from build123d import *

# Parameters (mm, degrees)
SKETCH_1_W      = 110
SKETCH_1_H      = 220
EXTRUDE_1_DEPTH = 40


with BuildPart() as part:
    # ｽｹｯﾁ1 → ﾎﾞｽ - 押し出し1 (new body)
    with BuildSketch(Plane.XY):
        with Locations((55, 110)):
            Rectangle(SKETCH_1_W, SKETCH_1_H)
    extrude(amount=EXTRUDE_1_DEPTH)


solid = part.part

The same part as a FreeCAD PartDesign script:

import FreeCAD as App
import Part
import Sketcher
from FreeCAD import Vector
Q = App.Units.Quantity


def add_polygon(sketch, points):
    """Adds a closed chain of lines whose ends are joined by coincident constraints."""
    first, n = sketch.GeometryCount, len(points)
    for a, b in zip(points, points[1:] + points[:1]):
        sketch.addGeometry(Part.LineSegment(App.Vector(*a, 0), App.Vector(*b, 0)), False)
    for i in range(n):
        sketch.addConstraint(Sketcher.Constraint("Coincident", first + i, 2, first + (i + 1) % n, 1))

doc = App.newDocument("Part")
params = doc.addObject("Spreadsheet::Sheet", "Params")
for row, (alias, value) in enumerate([
    ("sketch1_width", "110 mm"),
    ("sketch1_height", "220 mm"),
    ("pad1_length", "40 mm"),
], start=1):
    params.set(f"A{row}", alias)
    params.set(f"B{row}", "=" + value)
    params.setAlias(f"B{row}", alias)

body = doc.addObject("PartDesign::Body", "Body")

sketch1 = body.newObject("Sketcher::SketchObject", "Sketch")
sketch1.AttachmentSupport = (doc.getObject("XY_Plane"), [""])
sketch1.MapMode = "FlatFace"
add_polygon(sketch1, [(0, 220), (0, 0), (110, 0), (110, 220)])
sketch1.addConstraint([
    Sketcher.Constraint("Vertical", 0),
    Sketcher.Constraint("Horizontal", 1),
    Sketcher.Constraint("Vertical", 2),
    Sketcher.Constraint("Horizontal", 3),
    Sketcher.Constraint("Coincident", 0, 2, -1, 1),
    Sketcher.Constraint("DistanceX", 1, 1, 1, 2, Q("110 mm")),
    Sketcher.Constraint("DistanceY", 0, 2, 0, 1, Q("220 mm")),
])
sketch1.setExpression("Constraints[9]", "Params.sketch1_width")
sketch1.setExpression("Constraints[10]", "Params.sketch1_height")
pad1 = body.newObject("PartDesign::Pad", "Pad")
pad1.Profile = sketch1
pad1.setExpression("Length", "Params.pad1_length")

doc.recompute()
